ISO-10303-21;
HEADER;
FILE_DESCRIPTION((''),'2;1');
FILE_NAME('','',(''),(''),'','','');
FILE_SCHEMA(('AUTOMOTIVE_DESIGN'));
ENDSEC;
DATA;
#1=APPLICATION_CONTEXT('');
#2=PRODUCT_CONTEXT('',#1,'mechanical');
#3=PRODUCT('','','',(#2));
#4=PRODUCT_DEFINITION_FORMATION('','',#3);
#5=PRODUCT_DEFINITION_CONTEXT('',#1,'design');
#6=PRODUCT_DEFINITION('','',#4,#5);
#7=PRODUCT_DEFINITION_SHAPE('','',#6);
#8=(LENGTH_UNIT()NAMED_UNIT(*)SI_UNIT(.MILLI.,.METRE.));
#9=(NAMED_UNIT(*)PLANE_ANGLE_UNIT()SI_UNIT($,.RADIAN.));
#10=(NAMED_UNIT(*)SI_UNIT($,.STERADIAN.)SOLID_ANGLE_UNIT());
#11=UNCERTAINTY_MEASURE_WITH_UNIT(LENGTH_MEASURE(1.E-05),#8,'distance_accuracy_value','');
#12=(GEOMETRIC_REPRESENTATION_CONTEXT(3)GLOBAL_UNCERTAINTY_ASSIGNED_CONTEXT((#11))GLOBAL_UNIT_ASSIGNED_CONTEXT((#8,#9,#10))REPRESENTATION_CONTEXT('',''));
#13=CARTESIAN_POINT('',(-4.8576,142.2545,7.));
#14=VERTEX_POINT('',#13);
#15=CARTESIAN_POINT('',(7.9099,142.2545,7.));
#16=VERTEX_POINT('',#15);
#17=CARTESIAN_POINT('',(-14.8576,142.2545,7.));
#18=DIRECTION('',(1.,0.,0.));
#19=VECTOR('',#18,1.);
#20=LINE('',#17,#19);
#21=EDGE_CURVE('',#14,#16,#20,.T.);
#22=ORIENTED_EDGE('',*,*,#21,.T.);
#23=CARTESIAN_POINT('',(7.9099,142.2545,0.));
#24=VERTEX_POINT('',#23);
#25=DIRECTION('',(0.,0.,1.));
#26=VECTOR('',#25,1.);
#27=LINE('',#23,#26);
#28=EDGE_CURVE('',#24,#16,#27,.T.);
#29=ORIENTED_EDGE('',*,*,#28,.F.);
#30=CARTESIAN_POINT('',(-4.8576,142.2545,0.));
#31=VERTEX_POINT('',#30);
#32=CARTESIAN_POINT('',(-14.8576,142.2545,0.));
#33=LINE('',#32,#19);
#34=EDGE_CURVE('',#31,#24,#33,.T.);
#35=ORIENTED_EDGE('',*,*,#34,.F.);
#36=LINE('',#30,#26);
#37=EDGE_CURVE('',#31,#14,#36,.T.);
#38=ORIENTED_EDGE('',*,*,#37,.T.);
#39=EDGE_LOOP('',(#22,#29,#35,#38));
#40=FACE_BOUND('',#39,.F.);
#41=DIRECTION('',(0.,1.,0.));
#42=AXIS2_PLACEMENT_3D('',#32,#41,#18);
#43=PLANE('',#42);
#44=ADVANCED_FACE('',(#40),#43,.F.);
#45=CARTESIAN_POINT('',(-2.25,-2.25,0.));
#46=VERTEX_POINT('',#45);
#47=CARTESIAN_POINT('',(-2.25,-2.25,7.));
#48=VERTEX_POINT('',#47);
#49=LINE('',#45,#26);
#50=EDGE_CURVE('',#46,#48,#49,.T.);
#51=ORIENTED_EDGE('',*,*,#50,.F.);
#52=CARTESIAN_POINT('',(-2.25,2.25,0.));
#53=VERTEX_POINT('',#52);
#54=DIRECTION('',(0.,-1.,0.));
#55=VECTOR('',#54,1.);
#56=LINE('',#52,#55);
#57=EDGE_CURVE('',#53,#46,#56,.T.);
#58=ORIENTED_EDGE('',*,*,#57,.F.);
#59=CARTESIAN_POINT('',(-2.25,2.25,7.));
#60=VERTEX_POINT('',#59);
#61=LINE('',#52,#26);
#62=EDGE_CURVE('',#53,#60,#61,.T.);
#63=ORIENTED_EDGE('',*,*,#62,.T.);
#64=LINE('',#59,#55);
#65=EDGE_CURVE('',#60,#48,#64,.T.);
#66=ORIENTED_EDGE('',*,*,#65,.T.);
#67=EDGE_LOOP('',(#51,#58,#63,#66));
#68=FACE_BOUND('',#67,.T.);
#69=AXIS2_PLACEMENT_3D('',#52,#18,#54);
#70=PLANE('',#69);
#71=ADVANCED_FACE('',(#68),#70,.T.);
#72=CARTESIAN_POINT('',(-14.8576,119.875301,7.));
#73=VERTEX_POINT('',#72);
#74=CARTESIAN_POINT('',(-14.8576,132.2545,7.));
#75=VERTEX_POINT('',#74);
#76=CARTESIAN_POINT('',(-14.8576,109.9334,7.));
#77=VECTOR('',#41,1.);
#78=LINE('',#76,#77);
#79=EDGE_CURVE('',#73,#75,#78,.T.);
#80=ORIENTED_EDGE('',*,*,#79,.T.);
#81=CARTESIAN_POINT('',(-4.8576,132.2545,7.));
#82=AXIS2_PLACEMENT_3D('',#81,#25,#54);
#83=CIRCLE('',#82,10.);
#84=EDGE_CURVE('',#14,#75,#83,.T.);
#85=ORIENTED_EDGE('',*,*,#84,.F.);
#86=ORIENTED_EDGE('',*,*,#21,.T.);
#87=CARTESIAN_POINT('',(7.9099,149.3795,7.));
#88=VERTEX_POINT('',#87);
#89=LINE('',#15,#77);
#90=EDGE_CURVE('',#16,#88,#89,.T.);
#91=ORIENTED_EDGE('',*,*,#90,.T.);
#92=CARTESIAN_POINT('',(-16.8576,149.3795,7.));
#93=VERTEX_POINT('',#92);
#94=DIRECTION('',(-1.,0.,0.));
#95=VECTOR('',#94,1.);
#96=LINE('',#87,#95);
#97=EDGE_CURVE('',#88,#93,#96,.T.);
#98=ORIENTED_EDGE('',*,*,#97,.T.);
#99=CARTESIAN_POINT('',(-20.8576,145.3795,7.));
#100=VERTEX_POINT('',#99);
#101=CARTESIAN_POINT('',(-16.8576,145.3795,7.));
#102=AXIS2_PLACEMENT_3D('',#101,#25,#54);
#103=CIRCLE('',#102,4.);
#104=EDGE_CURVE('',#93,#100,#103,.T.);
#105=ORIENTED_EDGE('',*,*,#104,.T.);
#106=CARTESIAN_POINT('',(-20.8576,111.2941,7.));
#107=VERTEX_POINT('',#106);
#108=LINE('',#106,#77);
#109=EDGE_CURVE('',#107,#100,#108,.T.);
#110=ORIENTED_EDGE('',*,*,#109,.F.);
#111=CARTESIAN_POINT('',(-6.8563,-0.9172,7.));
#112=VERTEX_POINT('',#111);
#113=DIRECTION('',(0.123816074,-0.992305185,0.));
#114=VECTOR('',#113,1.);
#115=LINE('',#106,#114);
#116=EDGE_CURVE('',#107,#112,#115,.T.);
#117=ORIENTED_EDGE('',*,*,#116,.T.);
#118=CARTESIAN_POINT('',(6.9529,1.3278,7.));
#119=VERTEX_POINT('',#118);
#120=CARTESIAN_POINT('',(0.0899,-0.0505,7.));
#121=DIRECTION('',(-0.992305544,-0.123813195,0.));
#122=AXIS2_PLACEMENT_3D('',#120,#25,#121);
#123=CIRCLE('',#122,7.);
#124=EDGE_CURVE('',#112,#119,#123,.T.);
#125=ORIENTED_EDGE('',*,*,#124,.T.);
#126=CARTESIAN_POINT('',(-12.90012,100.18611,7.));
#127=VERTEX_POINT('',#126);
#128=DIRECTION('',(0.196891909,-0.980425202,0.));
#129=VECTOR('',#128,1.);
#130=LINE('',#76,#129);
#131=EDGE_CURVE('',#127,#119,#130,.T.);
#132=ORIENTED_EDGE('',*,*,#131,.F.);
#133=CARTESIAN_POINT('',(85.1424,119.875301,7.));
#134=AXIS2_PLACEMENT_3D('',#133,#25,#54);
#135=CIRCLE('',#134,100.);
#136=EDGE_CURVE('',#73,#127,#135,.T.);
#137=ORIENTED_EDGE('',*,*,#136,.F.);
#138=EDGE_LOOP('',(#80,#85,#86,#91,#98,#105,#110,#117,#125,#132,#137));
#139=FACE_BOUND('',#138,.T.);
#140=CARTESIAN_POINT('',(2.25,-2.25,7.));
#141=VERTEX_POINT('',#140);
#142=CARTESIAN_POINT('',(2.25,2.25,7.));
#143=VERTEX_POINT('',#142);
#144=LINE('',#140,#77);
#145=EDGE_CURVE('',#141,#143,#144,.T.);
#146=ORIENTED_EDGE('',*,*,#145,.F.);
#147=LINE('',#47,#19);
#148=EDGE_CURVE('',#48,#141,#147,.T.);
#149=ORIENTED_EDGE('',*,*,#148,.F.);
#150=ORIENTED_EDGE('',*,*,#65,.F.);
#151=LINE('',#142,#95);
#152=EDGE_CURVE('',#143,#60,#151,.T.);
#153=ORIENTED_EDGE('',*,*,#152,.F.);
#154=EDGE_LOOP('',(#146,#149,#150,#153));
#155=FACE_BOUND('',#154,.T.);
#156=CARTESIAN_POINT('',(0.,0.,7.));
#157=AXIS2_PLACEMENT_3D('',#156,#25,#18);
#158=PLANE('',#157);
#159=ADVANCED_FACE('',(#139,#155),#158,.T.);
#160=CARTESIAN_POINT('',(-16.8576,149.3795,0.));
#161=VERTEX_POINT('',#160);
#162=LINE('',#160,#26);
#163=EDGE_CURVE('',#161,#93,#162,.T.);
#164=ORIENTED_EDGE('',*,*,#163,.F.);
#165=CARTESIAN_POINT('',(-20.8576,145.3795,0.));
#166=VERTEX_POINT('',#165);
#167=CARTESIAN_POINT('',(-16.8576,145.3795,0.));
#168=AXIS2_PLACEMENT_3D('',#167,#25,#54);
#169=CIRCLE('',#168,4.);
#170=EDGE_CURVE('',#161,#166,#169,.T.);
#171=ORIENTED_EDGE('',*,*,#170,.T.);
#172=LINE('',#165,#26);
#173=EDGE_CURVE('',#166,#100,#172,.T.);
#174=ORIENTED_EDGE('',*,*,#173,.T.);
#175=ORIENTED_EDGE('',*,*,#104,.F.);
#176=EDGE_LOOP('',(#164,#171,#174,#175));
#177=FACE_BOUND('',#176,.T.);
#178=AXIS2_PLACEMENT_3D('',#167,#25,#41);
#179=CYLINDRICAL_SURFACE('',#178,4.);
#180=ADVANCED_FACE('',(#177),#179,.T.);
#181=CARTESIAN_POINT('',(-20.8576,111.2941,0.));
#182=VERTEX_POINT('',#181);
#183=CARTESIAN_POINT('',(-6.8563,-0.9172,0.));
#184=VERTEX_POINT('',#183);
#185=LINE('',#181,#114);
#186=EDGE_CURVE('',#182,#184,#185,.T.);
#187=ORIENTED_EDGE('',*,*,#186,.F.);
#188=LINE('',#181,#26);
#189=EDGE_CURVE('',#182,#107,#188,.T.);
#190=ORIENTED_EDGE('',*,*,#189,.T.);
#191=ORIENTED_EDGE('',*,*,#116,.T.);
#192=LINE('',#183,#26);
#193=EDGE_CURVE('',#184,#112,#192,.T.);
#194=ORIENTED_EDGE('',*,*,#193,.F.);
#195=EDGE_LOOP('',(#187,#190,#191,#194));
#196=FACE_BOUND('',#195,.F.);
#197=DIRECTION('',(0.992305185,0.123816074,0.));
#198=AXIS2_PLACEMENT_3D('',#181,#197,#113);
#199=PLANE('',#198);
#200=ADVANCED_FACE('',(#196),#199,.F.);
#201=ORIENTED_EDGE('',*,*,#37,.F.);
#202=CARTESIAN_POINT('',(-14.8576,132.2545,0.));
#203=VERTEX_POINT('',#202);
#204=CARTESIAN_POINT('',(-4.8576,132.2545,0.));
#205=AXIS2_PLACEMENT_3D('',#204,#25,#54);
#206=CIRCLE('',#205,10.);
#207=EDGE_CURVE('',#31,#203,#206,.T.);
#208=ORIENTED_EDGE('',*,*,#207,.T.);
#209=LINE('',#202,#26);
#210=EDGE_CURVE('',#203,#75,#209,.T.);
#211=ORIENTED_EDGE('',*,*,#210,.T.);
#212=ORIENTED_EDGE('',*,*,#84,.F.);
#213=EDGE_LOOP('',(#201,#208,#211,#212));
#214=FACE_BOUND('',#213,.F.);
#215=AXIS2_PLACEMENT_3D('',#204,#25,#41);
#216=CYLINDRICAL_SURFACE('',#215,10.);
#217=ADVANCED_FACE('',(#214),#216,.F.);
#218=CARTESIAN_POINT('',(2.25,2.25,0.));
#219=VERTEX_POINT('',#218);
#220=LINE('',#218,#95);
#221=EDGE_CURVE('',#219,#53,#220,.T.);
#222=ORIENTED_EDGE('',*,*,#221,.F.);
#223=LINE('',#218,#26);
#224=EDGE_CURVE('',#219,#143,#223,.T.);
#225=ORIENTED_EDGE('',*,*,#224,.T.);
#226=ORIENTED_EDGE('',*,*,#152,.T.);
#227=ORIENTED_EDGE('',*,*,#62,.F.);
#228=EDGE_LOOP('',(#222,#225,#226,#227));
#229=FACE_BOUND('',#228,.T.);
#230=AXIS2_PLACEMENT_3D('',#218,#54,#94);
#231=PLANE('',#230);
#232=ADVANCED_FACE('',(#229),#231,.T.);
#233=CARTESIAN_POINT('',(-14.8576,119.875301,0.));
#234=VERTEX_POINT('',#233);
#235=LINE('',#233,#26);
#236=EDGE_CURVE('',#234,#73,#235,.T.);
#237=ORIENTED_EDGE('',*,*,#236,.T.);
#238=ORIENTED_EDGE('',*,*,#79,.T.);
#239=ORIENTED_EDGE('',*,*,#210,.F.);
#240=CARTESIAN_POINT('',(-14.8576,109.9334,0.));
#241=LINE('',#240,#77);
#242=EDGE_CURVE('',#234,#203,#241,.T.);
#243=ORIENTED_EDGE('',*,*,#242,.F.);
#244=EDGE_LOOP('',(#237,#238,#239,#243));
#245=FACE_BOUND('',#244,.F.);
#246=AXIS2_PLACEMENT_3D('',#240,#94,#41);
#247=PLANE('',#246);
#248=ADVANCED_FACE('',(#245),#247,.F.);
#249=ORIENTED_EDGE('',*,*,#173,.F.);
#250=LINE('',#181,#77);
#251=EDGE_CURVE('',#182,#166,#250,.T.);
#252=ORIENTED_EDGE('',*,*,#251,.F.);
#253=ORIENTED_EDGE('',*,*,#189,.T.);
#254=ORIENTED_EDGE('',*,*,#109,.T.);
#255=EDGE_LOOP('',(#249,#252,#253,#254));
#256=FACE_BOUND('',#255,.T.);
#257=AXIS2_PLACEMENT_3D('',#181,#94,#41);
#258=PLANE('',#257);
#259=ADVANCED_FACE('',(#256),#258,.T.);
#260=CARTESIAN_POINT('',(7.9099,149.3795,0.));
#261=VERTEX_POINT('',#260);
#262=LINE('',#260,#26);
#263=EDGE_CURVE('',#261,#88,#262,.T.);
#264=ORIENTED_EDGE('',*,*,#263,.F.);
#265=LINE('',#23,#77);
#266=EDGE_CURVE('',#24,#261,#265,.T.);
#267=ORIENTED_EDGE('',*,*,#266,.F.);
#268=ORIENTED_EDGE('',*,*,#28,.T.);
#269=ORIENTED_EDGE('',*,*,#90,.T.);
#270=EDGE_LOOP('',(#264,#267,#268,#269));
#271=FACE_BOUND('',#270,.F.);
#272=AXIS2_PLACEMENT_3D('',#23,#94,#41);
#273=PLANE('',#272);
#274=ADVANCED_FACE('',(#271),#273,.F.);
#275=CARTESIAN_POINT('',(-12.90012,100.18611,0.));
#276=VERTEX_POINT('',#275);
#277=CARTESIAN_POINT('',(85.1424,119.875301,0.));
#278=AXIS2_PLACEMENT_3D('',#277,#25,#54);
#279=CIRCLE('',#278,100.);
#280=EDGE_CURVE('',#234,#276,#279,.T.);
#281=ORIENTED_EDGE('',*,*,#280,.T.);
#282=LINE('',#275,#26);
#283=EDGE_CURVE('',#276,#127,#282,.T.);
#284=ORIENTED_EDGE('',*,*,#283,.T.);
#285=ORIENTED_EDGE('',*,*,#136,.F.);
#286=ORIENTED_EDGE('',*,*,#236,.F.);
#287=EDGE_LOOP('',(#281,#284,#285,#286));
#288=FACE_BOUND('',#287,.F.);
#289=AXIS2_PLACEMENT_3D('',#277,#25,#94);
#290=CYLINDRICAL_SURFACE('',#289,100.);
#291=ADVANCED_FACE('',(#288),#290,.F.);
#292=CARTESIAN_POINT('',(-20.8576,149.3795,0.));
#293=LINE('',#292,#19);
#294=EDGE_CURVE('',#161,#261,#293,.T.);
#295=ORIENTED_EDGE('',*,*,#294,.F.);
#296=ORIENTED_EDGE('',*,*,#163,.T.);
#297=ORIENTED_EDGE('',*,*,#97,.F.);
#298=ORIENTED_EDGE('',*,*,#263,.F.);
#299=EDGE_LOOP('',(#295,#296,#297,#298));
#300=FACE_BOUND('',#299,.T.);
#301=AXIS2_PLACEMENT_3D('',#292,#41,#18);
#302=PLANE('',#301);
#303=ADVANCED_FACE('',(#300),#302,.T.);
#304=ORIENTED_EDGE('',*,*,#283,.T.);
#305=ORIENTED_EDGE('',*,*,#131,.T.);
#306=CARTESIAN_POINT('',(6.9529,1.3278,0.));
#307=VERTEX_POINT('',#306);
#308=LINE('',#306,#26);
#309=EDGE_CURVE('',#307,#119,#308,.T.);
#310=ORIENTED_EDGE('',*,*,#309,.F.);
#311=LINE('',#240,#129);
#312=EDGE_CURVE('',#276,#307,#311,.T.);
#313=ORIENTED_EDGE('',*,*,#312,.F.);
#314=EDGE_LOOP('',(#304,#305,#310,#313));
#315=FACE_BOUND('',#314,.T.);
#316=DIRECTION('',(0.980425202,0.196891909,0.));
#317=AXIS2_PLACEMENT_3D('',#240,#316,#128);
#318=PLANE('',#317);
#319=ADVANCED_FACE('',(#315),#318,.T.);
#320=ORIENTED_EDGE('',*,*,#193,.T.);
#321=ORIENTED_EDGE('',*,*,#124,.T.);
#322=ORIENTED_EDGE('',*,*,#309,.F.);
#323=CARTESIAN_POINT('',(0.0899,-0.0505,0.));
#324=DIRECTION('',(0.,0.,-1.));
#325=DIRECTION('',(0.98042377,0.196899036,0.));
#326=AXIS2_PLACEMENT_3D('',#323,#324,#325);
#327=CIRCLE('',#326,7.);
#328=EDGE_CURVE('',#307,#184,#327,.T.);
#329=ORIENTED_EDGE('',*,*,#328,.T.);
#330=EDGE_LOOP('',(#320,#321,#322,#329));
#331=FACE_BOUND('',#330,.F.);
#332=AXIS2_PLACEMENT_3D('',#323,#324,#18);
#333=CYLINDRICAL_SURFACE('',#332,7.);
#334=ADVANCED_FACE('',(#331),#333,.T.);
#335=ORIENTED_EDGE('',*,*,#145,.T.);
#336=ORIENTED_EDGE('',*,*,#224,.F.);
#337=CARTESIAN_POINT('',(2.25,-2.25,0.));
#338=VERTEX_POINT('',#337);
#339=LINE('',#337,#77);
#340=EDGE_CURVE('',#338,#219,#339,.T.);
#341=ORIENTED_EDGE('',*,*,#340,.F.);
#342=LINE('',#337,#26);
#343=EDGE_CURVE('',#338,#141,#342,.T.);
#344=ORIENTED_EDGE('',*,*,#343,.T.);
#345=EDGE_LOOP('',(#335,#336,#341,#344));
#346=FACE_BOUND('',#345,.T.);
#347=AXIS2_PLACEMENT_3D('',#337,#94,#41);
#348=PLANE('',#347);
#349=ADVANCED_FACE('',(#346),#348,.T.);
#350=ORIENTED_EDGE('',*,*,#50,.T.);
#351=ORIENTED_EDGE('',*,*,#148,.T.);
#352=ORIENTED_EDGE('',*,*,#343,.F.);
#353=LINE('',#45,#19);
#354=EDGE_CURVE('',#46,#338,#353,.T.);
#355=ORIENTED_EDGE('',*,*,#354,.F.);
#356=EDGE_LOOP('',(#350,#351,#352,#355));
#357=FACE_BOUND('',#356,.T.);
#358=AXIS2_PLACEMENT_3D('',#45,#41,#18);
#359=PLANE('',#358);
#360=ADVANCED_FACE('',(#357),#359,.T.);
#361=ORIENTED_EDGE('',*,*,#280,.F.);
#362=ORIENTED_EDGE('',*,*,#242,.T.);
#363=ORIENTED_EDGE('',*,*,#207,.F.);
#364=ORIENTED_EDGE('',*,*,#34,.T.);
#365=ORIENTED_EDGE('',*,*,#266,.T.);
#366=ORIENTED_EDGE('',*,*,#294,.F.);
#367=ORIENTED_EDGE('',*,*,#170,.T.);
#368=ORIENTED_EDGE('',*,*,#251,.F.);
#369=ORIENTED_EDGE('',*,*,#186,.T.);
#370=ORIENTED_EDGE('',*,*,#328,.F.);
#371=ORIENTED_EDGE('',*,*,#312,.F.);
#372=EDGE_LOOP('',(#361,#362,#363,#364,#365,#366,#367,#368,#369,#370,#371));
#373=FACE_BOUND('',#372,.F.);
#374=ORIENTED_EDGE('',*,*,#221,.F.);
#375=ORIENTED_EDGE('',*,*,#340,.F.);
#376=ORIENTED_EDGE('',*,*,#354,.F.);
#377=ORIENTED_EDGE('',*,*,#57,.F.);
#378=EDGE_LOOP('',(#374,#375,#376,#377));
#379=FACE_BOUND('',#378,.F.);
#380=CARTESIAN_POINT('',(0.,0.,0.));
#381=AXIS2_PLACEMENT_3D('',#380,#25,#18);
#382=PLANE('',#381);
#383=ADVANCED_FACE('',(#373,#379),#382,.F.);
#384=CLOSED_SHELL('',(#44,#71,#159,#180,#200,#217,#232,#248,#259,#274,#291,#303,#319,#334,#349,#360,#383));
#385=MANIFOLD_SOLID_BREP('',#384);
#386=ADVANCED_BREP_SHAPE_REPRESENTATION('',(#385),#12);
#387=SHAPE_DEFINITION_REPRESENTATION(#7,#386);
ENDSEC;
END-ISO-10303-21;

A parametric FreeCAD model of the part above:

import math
import FreeCAD as App
import Part
import Sketcher

V = App.Vector
Q = App.Units.Quantity


def edges_at(feature, points):
    """Names of the edges that pass closest to the given points."""
    edges = feature.Shape.Edges
    near = lambda p: min(range(len(edges)), key=lambda i: edges[i].distToShape(Part.Vertex(*p))[0])
    return sorted({f"Edge{near(p) + 1}" for p in points})

doc = App.newDocument("Part")
body = doc.addObject("PartDesign::Body", "Body")

sketch1 = body.newObject("Sketcher::SketchObject", "Sketch")
sketch1.AttachmentSupport = (doc.getObject("XY_Plane"), [""])
sketch1.MapMode = "FlatFace"
sketch1.addGeometry(Part.LineSegment(V(6.9529, 1.3278, 0), V(-14.8576, 109.9334, 0)), False)
sketch1.addGeometry(Part.LineSegment(V(-14.8576, 109.9334, 0), V(-14.8576, 142.2545, 0)), False)
sketch1.addGeometry(Part.LineSegment(V(-14.8576, 142.2545, 0), V(7.9099, 142.2545, 0)), False)
sketch1.addGeometry(Part.LineSegment(V(7.9099, 142.2545, 0), V(7.9099, 149.3795, 0)), False)
sketch1.addGeometry(Part.LineSegment(V(7.9099, 149.3795, 0), V(-20.8576, 149.3795, 0)), False)
sketch1.addGeometry(Part.LineSegment(V(-20.8576, 149.3795, 0), V(-20.8576, 111.2941, 0)), False)
sketch1.addGeometry(Part.LineSegment(V(-20.8576, 111.2941, 0), V(-6.8563, -0.9172, 0)), False)
sketch1.addGeometry(Part.ArcOfCircle(Part.Circle(V(0.0899, -0.0505, 0), V(0, 0, 1), 7), math.radians(-172.887776), math.radians(11.355681)), False)
sketch1.addGeometry(Part.LineSegment(V(2.25, -2.25, 0), V(-2.25, -2.25, 0)), False)
sketch1.addGeometry(Part.LineSegment(V(-2.25, -2.25, 0), V(-2.25, 2.25, 0)), False)
sketch1.addGeometry(Part.LineSegment(V(-2.25, 2.25, 0), V(2.25, 2.25, 0)), False)
sketch1.addGeometry(Part.LineSegment(V(2.25, 2.25, 0), V(2.25, -2.25, 0)), False)
sketch1.addConstraint(Sketcher.Constraint("Coincident", 0, 2, 1, 1))
sketch1.addConstraint(Sketcher.Constraint("Coincident", 1, 2, 2, 1))
sketch1.addConstraint(Sketcher.Constraint("Coincident", 2, 2, 3, 1))
sketch1.addConstraint(Sketcher.Constraint("Coincident", 3, 2, 4, 1))
sketch1.addConstraint(Sketcher.Constraint("Coincident", 4, 2, 5, 1))
sketch1.addConstraint(Sketcher.Constraint("Coincident", 5, 2, 6, 1))
sketch1.addConstraint(Sketcher.Constraint("Tangent", 6, 2, 7, 1))
sketch1.addConstraint(Sketcher.Constraint("Tangent", 7, 2, 0, 1))
sketch1.addConstraint(Sketcher.Constraint("Coincident", 8, 2, 9, 1))
sketch1.addConstraint(Sketcher.Constraint("Coincident", 9, 2, 10, 1))
sketch1.addConstraint(Sketcher.Constraint("Coincident", 10, 2, 11, 1))
sketch1.addConstraint(Sketcher.Constraint("Coincident", 11, 2, 8, 1))
sketch1.addConstraint(Sketcher.Constraint("Vertical", 1))
sketch1.addConstraint(Sketcher.Constraint("Horizontal", 2))
sketch1.addConstraint(Sketcher.Constraint("Vertical", 3))
sketch1.addConstraint(Sketcher.Constraint("Horizontal", 4))
sketch1.addConstraint(Sketcher.Constraint("Vertical", 5))
sketch1.addConstraint(Sketcher.Constraint("Horizontal", 8))
sketch1.addConstraint(Sketcher.Constraint("Vertical", 9))
sketch1.addConstraint(Sketcher.Constraint("Horizontal", 10))
sketch1.addConstraint(Sketcher.Constraint("Vertical", 11))
sketch1.addConstraint(Sketcher.Constraint("Symmetric", 8, 2, 10, 2, -1, 1))
sketch1.addConstraint(Sketcher.Constraint("Equal", 10, 9))
sketch1.addConstraint(Sketcher.Constraint("Radius", 7, Q("7 mm")))
sketch1.addConstraint(Sketcher.Constraint("DistanceX", 8, 2, 8, 1, Q("4.5 mm")))
sketch1.addConstraint(Sketcher.Constraint("DistanceX", 4, 2, 1, 2, Q("6 mm")))
sketch1.addConstraint(Sketcher.Constraint("DistanceY", 1, 1, 1, 2, Q("32.321 mm")))
sketch1.addConstraint(Sketcher.Constraint("DistanceY", 3, 1, 3, 2, Q("7.125 mm")))
sketch1.addConstraint(Sketcher.Constraint("DistanceX", -1, 1, 7, 3, Q("0.09 mm")))
sketch1.addConstraint(Sketcher.Constraint("DistanceX", -1, 1, 2, 2, Q("7.91 mm")))
sketch1.addConstraint(Sketcher.Constraint("DistanceY", 7, 3, 3, 2, Q("149.43 mm")))
sketch1.addConstraint(Sketcher.Constraint("Distance", 0, Q("110.774 mm")))
sketch1.addConstraint(Sketcher.Constraint("DistanceY", 5, 2, 5, 1, Q("38.0854 mm")))
sketch1.addConstraint(Sketcher.Constraint("DistanceY", -1, 1, 5, 2, Q("111.294 mm")))
pad1 = body.newObject("PartDesign::Pad", "Pad")
pad1.Profile = sketch1
pad1.Length = 7
doc.recompute()

fillet = body.newObject("PartDesign::Fillet", "Fillet")
fillet.Base = (pad1, edges_at(pad1, [(-14.858, 142.255, 3.5)]))
fillet.Radius = 10
doc.recompute()

fillet2 = body.newObject("PartDesign::Fillet", "Fillet001")
fillet2.Base = (fillet, edges_at(fillet, [(-20.858, 149.38, 3.5)]))
fillet2.Radius = 4
doc.recompute()

fillet3 = body.newObject("PartDesign::Fillet", "Fillet002")
fillet3.Base = (fillet2, edges_at(fillet2, [(-14.858, 109.933, 3.5)]))
fillet3.Radius = 100

doc.recompute()
